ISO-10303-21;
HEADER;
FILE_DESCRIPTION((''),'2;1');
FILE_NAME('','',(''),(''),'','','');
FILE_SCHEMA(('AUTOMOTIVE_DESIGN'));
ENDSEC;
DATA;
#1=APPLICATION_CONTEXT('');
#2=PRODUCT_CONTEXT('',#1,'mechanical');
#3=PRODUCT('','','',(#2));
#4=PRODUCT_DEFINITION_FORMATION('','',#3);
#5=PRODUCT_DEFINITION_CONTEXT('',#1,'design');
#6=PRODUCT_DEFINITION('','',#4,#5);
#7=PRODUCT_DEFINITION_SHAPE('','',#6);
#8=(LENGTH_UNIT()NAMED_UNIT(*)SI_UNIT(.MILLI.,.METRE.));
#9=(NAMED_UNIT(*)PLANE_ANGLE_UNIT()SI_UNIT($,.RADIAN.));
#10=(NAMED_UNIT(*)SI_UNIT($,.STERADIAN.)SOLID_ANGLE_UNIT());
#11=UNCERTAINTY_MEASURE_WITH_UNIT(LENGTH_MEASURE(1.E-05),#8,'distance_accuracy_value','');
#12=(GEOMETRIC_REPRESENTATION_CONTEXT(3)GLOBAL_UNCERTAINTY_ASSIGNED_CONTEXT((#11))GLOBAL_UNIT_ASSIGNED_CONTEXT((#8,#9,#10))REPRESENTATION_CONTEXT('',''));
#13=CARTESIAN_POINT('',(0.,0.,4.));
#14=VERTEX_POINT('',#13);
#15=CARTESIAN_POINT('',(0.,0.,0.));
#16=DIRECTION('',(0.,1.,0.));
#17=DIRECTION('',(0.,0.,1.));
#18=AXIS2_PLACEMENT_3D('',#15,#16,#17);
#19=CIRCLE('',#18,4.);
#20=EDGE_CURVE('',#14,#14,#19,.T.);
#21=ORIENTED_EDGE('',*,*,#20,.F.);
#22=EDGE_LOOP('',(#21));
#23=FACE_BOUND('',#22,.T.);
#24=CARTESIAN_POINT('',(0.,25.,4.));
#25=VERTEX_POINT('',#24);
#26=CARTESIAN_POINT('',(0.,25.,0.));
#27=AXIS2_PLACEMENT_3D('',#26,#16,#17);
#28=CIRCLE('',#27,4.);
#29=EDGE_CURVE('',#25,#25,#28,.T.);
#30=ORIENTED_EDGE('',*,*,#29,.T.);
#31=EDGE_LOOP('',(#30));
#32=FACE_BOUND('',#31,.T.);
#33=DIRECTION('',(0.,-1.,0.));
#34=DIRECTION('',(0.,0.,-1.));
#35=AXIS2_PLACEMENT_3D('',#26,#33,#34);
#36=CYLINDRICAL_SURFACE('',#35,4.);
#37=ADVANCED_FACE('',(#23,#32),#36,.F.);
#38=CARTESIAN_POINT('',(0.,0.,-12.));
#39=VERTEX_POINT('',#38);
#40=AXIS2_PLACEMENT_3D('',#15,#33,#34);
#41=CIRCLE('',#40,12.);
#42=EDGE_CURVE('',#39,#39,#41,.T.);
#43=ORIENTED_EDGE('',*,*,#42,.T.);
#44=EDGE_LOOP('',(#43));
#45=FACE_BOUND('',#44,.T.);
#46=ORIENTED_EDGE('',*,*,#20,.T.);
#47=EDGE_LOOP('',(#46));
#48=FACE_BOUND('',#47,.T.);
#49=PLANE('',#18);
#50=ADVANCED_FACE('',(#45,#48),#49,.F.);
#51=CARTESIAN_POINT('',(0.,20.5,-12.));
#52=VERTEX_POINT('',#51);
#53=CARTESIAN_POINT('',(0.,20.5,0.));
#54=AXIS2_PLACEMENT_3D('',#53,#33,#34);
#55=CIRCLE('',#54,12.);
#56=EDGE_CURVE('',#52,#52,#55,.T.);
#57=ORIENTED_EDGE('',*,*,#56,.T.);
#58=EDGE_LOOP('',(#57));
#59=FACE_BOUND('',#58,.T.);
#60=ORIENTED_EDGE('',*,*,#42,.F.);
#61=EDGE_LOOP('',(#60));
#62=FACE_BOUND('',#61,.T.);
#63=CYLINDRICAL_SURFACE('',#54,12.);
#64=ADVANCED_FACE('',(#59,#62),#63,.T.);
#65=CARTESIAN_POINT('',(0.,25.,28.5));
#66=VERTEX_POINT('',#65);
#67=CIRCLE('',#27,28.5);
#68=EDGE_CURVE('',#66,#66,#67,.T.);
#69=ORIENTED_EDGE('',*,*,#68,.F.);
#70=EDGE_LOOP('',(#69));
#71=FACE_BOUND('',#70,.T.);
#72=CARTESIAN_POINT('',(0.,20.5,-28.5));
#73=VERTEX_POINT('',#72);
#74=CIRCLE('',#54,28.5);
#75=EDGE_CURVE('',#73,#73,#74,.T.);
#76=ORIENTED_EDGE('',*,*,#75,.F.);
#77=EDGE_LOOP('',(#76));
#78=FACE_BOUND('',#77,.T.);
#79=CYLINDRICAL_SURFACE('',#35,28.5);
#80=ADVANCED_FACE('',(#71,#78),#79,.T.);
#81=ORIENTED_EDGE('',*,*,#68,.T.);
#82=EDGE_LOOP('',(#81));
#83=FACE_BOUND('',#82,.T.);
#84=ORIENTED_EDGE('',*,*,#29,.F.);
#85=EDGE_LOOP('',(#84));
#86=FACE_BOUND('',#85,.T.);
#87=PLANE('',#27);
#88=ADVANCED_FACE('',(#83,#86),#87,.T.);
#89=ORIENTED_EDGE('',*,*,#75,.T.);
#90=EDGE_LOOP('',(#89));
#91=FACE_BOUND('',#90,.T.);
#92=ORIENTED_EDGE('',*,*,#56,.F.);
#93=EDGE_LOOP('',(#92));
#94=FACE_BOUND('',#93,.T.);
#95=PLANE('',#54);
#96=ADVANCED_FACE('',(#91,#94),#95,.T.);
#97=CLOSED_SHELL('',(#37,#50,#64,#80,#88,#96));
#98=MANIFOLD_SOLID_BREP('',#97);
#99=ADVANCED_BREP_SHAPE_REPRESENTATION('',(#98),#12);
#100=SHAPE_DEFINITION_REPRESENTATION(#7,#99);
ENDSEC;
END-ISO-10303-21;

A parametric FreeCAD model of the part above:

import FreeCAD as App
import Part
import Sketcher
from FreeCAD import Vector


def add_polygon(sketch, points):
    """Adds a closed chain of lines whose ends are joined by coincident constraints."""
    first, n = sketch.GeometryCount, len(points)
    for a, b in zip(points, points[1:] + points[:1]):
        sketch.addGeometry(Part.LineSegment(App.Vector(*a, 0), App.Vector(*b, 0)), False)
    for i in range(n):
        sketch.addConstraint(Sketcher.Constraint("Coincident", first + i, 2, first + (i + 1) % n, 1))

doc = App.newDocument("Part")
params = doc.addObject("Spreadsheet::Sheet", "Params")
for row, (alias, value) in enumerate([
    ("sketch1_diameter", "57 mm"),
    ("sketch1_diameter2", "8 mm"),
    ("pad1_length", "25 mm"),
    ("sketch2_diameter", "24 mm"),
    ("sketch2_width", "75.88 mm"),
    ("pocket1_length", "20.5 mm"),
], start=1):
    params.set(f"A{row}", alias)
    params.set(f"B{row}", "=" + value)
    params.setAlias(f"B{row}", alias)

body = doc.addObject("PartDesign::Body", "Body")

# Sketch on XZ plane
sketch1 = body.newObject("Sketcher::SketchObject", "Sketch")
sketch1.AttachmentSupport = (doc.getObject("XZ_Plane"), [""])
sketch1.MapMode = "FlatFace"
sketch1.addGeometry([
    Part.Circle(Vector(0, 0, 0), Vector(0, 0, 1), 28.5),
    Part.Circle(Vector(0, 0, 0), Vector(0, 0, 1), 4),
], False)
sketch1.addConstraint([
    Sketcher.Constraint("Coincident", 0, 3, -1, 1),
    Sketcher.Constraint("Coincident", 1, 3, -1, 1),
    Sketcher.Constraint("Diameter", 0, 57.0),
    Sketcher.Constraint("Diameter", 1, 8.0),
])
sketch1.setExpression("Constraints[2]", "Params.sketch1_diameter")
sketch1.setExpression("Constraints[3]", "Params.sketch1_diameter2")
pad1 = body.newObject("PartDesign::Pad", "Pad")
pad1.Profile = sketch1
pad1.setExpression("Length", "Params.pad1_length")
pad1.Reversed = True

# Sketch on XZ plane
sketch2 = body.newObject("Sketcher::SketchObject", "Sketch001")
sketch2.AttachmentSupport = (doc.getObject("XZ_Plane"), [""])
sketch2.MapMode = "FlatFace"
add_polygon(sketch2, [(-38, 38), (-38, -38), (38, -38), (38, 38)])  # lines 0-3
sketch2.addGeometry(Part.Circle(Vector(0, 0, 0), Vector(0, 0, 1), 12), False)  # 4
sketch2.addConstraint([
    Sketcher.Constraint("Vertical", 0),
    Sketcher.Constraint("Horizontal", 1),
    Sketcher.Constraint("Vertical", 2),
    Sketcher.Constraint("Horizontal", 3),
    Sketcher.Constraint("Coincident", 4, 3, -1, 1),
    Sketcher.Constraint("Symmetric", 0, 2, 2, 2, -1, 1),
    Sketcher.Constraint("Equal", 3, 0),
    Sketcher.Constraint("Diameter", 4, 24.0),
    Sketcher.Constraint("DistanceX", 1, 1, 1, 2, 75.88),
])
sketch2.setExpression("Constraints[11]", "Params.sketch2_diameter")
sketch2.setExpression("Constraints[12]", "Params.sketch2_width")
pocket1 = body.newObject("PartDesign::Pocket", "Pocket")
pocket1.Profile = sketch2
pocket1.setExpression("Length", "Params.pocket1_length")

doc.recompute()
